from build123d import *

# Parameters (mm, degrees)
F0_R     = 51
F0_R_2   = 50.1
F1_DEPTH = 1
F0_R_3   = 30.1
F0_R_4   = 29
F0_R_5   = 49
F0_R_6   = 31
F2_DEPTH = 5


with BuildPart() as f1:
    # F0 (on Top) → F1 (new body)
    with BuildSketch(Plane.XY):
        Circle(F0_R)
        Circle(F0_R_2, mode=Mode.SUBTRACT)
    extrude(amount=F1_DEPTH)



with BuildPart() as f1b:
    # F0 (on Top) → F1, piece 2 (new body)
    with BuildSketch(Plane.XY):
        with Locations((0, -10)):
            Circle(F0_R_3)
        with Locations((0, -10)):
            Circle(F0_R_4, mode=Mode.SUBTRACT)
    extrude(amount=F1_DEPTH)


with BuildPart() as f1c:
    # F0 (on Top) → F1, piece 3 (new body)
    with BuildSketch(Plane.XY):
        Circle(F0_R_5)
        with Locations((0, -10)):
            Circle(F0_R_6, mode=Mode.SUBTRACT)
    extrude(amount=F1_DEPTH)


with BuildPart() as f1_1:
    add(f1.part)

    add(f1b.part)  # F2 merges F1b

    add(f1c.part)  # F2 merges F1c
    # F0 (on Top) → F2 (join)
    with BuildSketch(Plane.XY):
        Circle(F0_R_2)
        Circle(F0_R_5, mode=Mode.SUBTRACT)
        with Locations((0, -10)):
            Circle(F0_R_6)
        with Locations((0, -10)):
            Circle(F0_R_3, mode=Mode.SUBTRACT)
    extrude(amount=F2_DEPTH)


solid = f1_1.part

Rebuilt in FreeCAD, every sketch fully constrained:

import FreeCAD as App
import Part
import Sketcher

V = App.Vector
Q = App.Units.Quantity

doc = App.newDocument("Part")
params = doc.addObject("Spreadsheet::Sheet", "Params")
for row, (alias, value) in enumerate([
    ("sketch1_diameter", "102 mm"),
    ("sketch1_diameter2", "100.2 mm"),
    ("pad1_length", "1 mm"),
    ("sketch2_diameter", "58 mm"),
    ("sketch2_diameter2", "60.2 mm"),
    ("pad2_length", "1 mm"),
    ("sketch3_diameter", "98 mm"),
    ("sketch3_diameter2", "62 mm"),
    ("pad3_length", "1 mm"),
    ("sketch4_diameter", "98 mm"),
    ("sketch4_diameter2", "62 mm"),
    ("sketch4_diameter3", "100.2 mm"),
    ("sketch4_diameter4", "60.2 mm"),
    ("pad4_length", "5 mm"),
], start=1):
    params.set(f"A{row}", alias)
    params.set(f"B{row}", "=" + value)
    params.setAlias(f"B{row}", alias)

body = doc.addObject("PartDesign::Body", "Body")

# Sketch on XY plane
sketch1 = doc.addObject("Sketcher::SketchObject", "Sketch")
body.addObject(sketch1)
sketch1.AttachmentSupport = (doc.XY_Plane, [""])
sketch1.MapMode = "FlatFace"
sketch1.addGeometry([
    Part.Circle(V(0, 0, 0), V(0, 0, 1), 51),
    Part.Circle(V(0, 0, 0), V(0, 0, 1), 50.1),
], False)
sketch1.addConstraint([
    Sketcher.Constraint("Coincident", 0, 3, -1, 1),
    Sketcher.Constraint("Coincident", 1, 3, -1, 1),
    Sketcher.Constraint("Diameter", 0, Q("102 mm")),
    Sketcher.Constraint("Diameter", 1, Q("100.2 mm")),
])
sketch1.setExpression("Constraints[2]", "Params.sketch1_diameter")
sketch1.setExpression("Constraints[3]", "Params.sketch1_diameter2")
pad1 = doc.addObject("PartDesign::Pad", "Pad")
body.addObject(pad1)
pad1.Profile = sketch1
pad1.setExpression("Length", "Params.pad1_length")
body2 = doc.addObject("PartDesign::Body", "Body001")

# Sketch on XY plane
sketch2 = doc.addObject("Sketcher::SketchObject", "Sketch001")
body2.addObject(sketch2)
sketch2.AttachmentSupport = (doc.getObject("XY_Plane001"), [""])
sketch2.MapMode = "FlatFace"
sketch2.addGeometry([
    Part.Circle(V(0, -10, 0), V(0, 0, 1), 30.1),
    Part.Circle(V(0, -10, 0), V(0, 0, 1), 29),
], False)
sketch2.addConstraint([
    Sketcher.Constraint("Coincident", 1, 3, 0, 3),
    Sketcher.Constraint("PointOnObject", 0, 3, -2),
    Sketcher.Constraint("Diameter", 1, Q("58 mm")),
    Sketcher.Constraint("Diameter", 0, Q("60.2 mm")),
    Sketcher.Constraint("DistanceY", 0, 3, -1, 1, Q("10 mm")),
])
sketch2.setExpression("Constraints[2]", "Params.sketch2_diameter")
sketch2.setExpression("Constraints[3]", "Params.sketch2_diameter2")
pad2 = doc.addObject("PartDesign::Pad", "Pad001")
body2.addObject(pad2)
pad2.Profile = sketch2
pad2.setExpression("Length", "Params.pad2_length")
body3 = doc.addObject("PartDesign::Body", "Body002")

# Sketch on XY plane
sketch3 = doc.addObject("Sketcher::SketchObject", "Sketch002")
body3.addObject(sketch3)
sketch3.AttachmentSupport = (doc.getObject("XY_Plane002"), [""])
sketch3.MapMode = "FlatFace"
sketch3.addGeometry([
    Part.Circle(V(0, 0, 0), V(0, 0, 1), 49),
    Part.Circle(V(0, -10, 0), V(0, 0, 1), 31),
], False)
sketch3.addConstraint([
    Sketcher.Constraint("Coincident", 0, 3, -1, 1),
    Sketcher.Constraint("PointOnObject", 1, 3, -2),
    Sketcher.Constraint("Diameter", 0, Q("98 mm")),
    Sketcher.Constraint("Diameter", 1, Q("62 mm")),
    Sketcher.Constraint("DistanceY", 1, 3, -1, 1, Q("10 mm")),
])
sketch3.setExpression("Constraints[2]", "Params.sketch3_diameter")
sketch3.setExpression("Constraints[3]", "Params.sketch3_diameter2")
pad3 = doc.addObject("PartDesign::Pad", "Pad002")
body3.addObject(pad3)
pad3.Profile = sketch3
pad3.setExpression("Length", "Params.pad3_length")
body.AllowCompound = True
doc.recompute()

boolean = doc.addObject("PartDesign::Boolean", "Boolean")
body.addObject(boolean)
boolean.Type = "Fuse"
boolean.addObjects([body2])
doc.recompute()

boolean2 = doc.addObject("PartDesign::Boolean", "Boolean001")
body.addObject(boolean2)
boolean2.Type = "Fuse"
boolean2.addObjects([body3])

# Sketch on XY plane
sketch4 = doc.addObject("Sketcher::SketchObject", "Sketch003")
body.addObject(sketch4)
sketch4.AttachmentSupport = (doc.XY_Plane, [""])
sketch4.MapMode = "FlatFace"
sketch4.addGeometry([
    Part.Circle(V(0, 0, 0), V(0, 0, 1), 50.1),
    Part.Circle(V(0, 0, 0), V(0, 0, 1), 49),
    Part.Circle(V(0, -10, 0), V(0, 0, 1), 31),
    Part.Circle(V(0, -10, 0), V(0, 0, 1), 30.1),
], False)
sketch4.addConstraint([
    Sketcher.Constraint("Coincident", 0, 3, -1, 1),
    Sketcher.Constraint("Coincident", 1, 3, -1, 1),
    Sketcher.Constraint("Coincident", 3, 3, 2, 3),
    Sketcher.Constraint("PointOnObject", 2, 3, -2),
    Sketcher.Constraint("Diameter", 1, Q("98 mm")),
    Sketcher.Constraint("Diameter", 2, Q("62 mm")),
    Sketcher.Constraint("Diameter", 0, Q("100.2 mm")),
    Sketcher.Constraint("Diameter", 3, Q("60.2 mm")),
    Sketcher.Constraint("DistanceY", 2, 3, -1, 1, Q("10 mm")),
])
sketch4.setExpression("Constraints[4]", "Params.sketch4_diameter")
sketch4.setExpression("Constraints[5]", "Params.sketch4_diameter2")
sketch4.setExpression("Constraints[6]", "Params.sketch4_diameter3")
sketch4.setExpression("Constraints[7]", "Params.sketch4_diameter4")
pad4 = doc.addObject("PartDesign::Pad", "Pad003")
body.addObject(pad4)
pad4.Profile = sketch4
pad4.setExpression("Length", "Params.pad4_length")

doc.recompute()
